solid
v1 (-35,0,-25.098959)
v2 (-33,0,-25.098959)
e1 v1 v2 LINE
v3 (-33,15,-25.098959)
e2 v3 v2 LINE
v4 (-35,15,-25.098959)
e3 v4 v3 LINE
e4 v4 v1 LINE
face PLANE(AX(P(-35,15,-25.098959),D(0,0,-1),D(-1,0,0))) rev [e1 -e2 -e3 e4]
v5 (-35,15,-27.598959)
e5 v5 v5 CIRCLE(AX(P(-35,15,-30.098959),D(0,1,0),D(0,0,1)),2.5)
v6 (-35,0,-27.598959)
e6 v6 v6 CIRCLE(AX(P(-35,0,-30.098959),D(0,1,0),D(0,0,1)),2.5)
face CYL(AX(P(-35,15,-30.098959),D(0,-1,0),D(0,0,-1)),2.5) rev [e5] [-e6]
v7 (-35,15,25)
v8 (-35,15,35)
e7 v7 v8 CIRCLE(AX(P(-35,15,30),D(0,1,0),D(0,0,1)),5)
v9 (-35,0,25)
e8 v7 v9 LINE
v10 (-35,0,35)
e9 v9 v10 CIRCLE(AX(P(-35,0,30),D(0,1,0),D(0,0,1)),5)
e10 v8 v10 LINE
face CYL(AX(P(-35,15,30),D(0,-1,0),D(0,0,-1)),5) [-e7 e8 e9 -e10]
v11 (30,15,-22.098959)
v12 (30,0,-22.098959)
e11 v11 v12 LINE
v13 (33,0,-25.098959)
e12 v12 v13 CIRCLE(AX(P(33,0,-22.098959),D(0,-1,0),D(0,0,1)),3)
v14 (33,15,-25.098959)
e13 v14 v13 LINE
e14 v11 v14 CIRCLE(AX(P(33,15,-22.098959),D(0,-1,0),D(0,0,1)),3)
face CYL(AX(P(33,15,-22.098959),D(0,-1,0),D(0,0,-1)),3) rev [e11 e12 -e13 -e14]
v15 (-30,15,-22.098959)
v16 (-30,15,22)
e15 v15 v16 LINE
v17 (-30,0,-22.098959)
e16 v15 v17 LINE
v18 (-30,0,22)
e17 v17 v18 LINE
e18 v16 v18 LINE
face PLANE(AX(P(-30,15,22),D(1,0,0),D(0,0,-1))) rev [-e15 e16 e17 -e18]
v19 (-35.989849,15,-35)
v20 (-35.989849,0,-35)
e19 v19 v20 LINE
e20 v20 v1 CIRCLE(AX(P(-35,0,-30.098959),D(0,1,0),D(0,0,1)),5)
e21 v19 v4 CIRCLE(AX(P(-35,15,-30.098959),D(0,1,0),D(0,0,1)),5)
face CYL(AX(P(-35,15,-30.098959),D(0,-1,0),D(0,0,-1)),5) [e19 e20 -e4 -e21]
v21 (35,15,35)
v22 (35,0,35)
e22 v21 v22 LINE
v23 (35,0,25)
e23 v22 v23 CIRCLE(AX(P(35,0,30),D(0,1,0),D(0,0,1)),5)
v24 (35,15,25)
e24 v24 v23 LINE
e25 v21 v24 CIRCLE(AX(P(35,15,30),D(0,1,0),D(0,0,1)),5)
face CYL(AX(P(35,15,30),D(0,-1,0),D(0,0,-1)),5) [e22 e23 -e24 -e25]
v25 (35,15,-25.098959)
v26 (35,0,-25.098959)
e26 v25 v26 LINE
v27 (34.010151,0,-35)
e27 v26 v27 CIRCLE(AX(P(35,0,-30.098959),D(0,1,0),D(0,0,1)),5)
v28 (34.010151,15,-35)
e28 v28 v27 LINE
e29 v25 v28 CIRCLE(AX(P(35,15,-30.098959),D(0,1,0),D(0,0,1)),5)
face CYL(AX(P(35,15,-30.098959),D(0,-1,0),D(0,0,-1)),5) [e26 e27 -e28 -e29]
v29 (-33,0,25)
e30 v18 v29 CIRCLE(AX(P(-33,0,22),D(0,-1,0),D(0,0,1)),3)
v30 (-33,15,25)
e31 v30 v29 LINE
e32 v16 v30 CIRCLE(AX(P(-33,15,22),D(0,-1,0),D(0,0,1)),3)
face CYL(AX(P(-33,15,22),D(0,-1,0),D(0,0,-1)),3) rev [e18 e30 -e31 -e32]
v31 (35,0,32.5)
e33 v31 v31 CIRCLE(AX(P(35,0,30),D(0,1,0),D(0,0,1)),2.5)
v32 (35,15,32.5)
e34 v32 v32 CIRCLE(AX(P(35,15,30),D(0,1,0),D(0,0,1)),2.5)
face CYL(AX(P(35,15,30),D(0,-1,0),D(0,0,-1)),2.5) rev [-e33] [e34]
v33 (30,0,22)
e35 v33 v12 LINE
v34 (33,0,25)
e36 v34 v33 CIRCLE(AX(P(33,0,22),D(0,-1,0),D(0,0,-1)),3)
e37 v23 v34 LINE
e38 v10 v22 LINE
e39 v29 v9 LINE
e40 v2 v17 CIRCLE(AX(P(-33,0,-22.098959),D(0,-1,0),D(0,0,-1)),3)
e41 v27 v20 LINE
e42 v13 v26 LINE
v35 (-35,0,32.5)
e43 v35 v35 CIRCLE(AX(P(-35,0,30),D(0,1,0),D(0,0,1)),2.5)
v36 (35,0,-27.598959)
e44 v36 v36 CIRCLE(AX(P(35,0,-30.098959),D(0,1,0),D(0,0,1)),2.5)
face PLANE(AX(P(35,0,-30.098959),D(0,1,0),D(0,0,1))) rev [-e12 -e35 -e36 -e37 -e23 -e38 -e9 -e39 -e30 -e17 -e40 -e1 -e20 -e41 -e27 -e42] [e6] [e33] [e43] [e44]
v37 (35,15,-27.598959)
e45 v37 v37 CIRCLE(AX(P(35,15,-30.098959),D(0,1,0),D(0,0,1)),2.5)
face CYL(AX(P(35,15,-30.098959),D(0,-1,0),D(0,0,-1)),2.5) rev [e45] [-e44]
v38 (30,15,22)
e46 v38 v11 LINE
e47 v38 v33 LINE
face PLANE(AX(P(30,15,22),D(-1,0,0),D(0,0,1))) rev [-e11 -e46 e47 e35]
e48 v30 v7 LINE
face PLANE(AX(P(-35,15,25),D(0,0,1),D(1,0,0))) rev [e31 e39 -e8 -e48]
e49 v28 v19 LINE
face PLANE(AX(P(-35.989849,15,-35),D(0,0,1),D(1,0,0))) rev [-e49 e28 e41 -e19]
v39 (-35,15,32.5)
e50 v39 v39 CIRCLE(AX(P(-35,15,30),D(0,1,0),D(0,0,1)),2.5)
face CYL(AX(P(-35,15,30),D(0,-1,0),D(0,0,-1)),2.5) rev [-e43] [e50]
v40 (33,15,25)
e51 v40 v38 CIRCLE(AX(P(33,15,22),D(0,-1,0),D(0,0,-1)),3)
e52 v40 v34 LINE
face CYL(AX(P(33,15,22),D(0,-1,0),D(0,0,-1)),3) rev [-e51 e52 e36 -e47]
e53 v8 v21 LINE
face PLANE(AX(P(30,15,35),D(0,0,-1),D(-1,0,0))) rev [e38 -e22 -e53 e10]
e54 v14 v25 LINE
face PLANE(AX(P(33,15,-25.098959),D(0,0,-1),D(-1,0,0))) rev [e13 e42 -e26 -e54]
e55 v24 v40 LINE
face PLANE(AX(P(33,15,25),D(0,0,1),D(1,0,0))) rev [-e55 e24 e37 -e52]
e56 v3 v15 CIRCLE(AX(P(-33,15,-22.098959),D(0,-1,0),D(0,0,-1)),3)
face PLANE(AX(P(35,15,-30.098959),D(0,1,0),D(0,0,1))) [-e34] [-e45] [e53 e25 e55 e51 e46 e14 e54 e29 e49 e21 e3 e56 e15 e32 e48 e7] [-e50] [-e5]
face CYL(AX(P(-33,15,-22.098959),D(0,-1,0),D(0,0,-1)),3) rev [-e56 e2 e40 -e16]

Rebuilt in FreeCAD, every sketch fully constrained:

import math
import FreeCAD as App
import Part
import Sketcher

doc = App.newDocument("Part")
body = doc.addObject("PartDesign::Body", "Body")

# Sketch on XZ plane
sketch1 = body.newObject("Sketcher::SketchObject", "Sketch")
sketch1.AttachmentSupport = (doc.getObject("XZ_Plane"), [""])
sketch1.MapMode = "FlatFace"
sketch1.addGeometry(Part.ArcOfCircle(Part.Circle(App.Vector(35, 30, 0), App.Vector(0, 0, 1), 5), math.radians(-90), math.radians(90)), False)
sketch1.addGeometry(Part.LineSegment(App.Vector(35, 25, 0), App.Vector(33, 25, 0)), False)
sketch1.addGeometry(Part.ArcOfCircle(Part.Circle(App.Vector(33, 22, 0), App.Vector(0, 0, 1), 3), math.radians(90), math.radians(180)), False)
sketch1.addGeometry(Part.LineSegment(App.Vector(30, 22, 0), App.Vector(30, -22.1, 0)), False)
sketch1.addGeometry(Part.ArcOfCircle(Part.Circle(App.Vector(33, -22.1, 0), App.Vector(0, 0, 1), 3), math.radians(180), math.radians(270)), False)
sketch1.addGeometry(Part.LineSegment(App.Vector(33, -25.1, 0), App.Vector(35, -25.1, 0)), False)
sketch1.addGeometry(Part.ArcOfCircle(Part.Circle(App.Vector(35, -30.1, 0), App.Vector(0, 0, 1), 5), math.radians(-101), math.radians(90)), False)
sketch1.addGeometry(Part.LineSegment(App.Vector(34, -35, 0), App.Vector(-36, -35, 0)), False)
sketch1.addGeometry(Part.ArcOfCircle(Part.Circle(App.Vector(-35, -30.1, 0), App.Vector(0, 0, 1), 5), math.radians(90), math.radians(259)), False)
sketch1.addGeometry(Part.LineSegment(App.Vector(-35, -25.1, 0), App.Vector(-33, -25.1, 0)), False)
sketch1.addGeometry(Part.ArcOfCircle(Part.Circle(App.Vector(-33, -22.1, 0), App.Vector(0, 0, 1), 3), math.radians(-90), math.radians(0)), False)
sketch1.addGeometry(Part.LineSegment(App.Vector(-30, -22.1, 0), App.Vector(-30, 22, 0)), False)
sketch1.addGeometry(Part.ArcOfCircle(Part.Circle(App.Vector(-33, 22, 0), App.Vector(0, 0, 1), 3), math.radians(0), math.radians(90)), False)
sketch1.addGeometry(Part.LineSegment(App.Vector(-33, 25, 0), App.Vector(-35, 25, 0)), False)
sketch1.addGeometry(Part.ArcOfCircle(Part.Circle(App.Vector(-35, 30, 0), App.Vector(0, 0, 1), 5), math.radians(90), math.radians(270)), False)
sketch1.addGeometry(Part.LineSegment(App.Vector(-35, 35, 0), App.Vector(35, 35, 0)), False)
sketch1.addGeometry(Part.Circle(App.Vector(-35, 30, 0), App.Vector(0, 0, 1), 2.5), False)
sketch1.addGeometry(Part.Circle(App.Vector(35, 30, 0), App.Vector(0, 0, 1), 2.5), False)
sketch1.addGeometry(Part.Circle(App.Vector(-35, -30.1, 0), App.Vector(0, 0, 1), 2.5), False)
sketch1.addGeometry(Part.Circle(App.Vector(35, -30.1, 0), App.Vector(0, 0, 1), 2.5), False)
sketch1.addConstraint(Sketcher.Constraint("Tangent", 0, 1, 1, 1))
sketch1.addConstraint(Sketcher.Constraint("Tangent", 1, 2, 2, 1))
sketch1.addConstraint(Sketcher.Constraint("Tangent", 2, 2, 3, 1))
sketch1.addConstraint(Sketcher.Constraint("Tangent", 3, 2, 4, 1))
sketch1.addConstraint(Sketcher.Constraint("Tangent", 4, 2, 5, 1))
sketch1.addConstraint(Sketcher.Constraint("Tangent", 5, 2, 6, 2))
sketch1.addConstraint(Sketcher.Constraint("Coincident", 6, 1, 7, 1))
sketch1.addConstraint(Sketcher.Constraint("Coincident", 7, 2, 8, 2))
sketch1.addConstraint(Sketcher.Constraint("Tangent", 8, 1, 9, 1))
sketch1.addConstraint(Sketcher.Constraint("Tangent", 9, 2, 10, 1))
sketch1.addConstraint(Sketcher.Constraint("Tangent", 10, 2, 11, 1))
sketch1.addConstraint(Sketcher.Constraint("Tangent", 11, 2, 12, 1))
sketch1.addConstraint(Sketcher.Constraint("Tangent", 12, 2, 13, 1))
sketch1.addConstraint(Sketcher.Constraint("Tangent", 13, 2, 14, 2))
sketch1.addConstraint(Sketcher.Constraint("Tangent", 14, 1, 15, 1))
sketch1.addConstraint(Sketcher.Constraint("Tangent", 15, 2, 0, 2))
sketch1.addConstraint(Sketcher.Constraint("Horizontal", 1))
sketch1.addConstraint(Sketcher.Constraint("Vertical", 3))
sketch1.addConstraint(Sketcher.Constraint("Horizontal", 5))
sketch1.addConstraint(Sketcher.Constraint("Horizontal", 7))
sketch1.addConstraint(Sketcher.Constraint("Horizontal", 9))
sketch1.addConstraint(Sketcher.Constraint("Vertical", 11))
sketch1.addConstraint(Sketcher.Constraint("Horizontal", 13))
sketch1.addConstraint(Sketcher.Constraint("Horizontal", 15))
sketch1.addConstraint(Sketcher.Constraint("Coincident", 16, 3, 14, 3))
sketch1.addConstraint(Sketcher.Constraint("Coincident", 17, 3, 0, 3))
sketch1.addConstraint(Sketcher.Constraint("Coincident", 18, 3, 8, 3))
sketch1.addConstraint(Sketcher.Constraint("Coincident", 19, 3, 6, 3))
sketch1.addConstraint(Sketcher.Constraint("Equal", 2, 4))
sketch1.addConstraint(Sketcher.Constraint("Equal", 0, 6))
sketch1.addConstraint(Sketcher.Constraint("Equal", 6, 8))
sketch1.addConstraint(Sketcher.Constraint("Equal", 4, 10))
sketch1.addConstraint(Sketcher.Constraint("Equal", 10, 12))
sketch1.addConstraint(Sketcher.Constraint("Equal", 8, 14))
sketch1.addConstraint(Sketcher.Constraint("Equal", 16, 17))
sketch1.addConstraint(Sketcher.Constraint("Equal", 17, 18))
sketch1.addConstraint(Sketcher.Constraint("Equal", 18, 19))
sketch1.addConstraint(Sketcher.Constraint("Symmetric", 6, 3, 8, 3, -2))
sketch1.addConstraint(Sketcher.Constraint("Vertical", 0, 3, 6, 3))
sketch1.addConstraint(Sketcher.Constraint("Vertical", 8, 3, 14, 3))
sketch1.addConstraint(Sketcher.Constraint("Equal", 5, 9))
sketch1.addConstraint(Sketcher.Constraint("Diameter", 16, 5.0))
sketch1.addConstraint(Sketcher.Constraint("Radius", 0, 5.0))
sketch1.addConstraint(Sketcher.Constraint("Radius", 2, 3.0))
sketch1.addConstraint(Sketcher.Constraint("DistanceX", 1, 2, 1, 1, 2.0))
sketch1.addConstraint(Sketcher.Constraint("DistanceX", 7, 2, 7, 1, 70.0))
sketch1.addConstraint(Sketcher.Constraint("DistanceY", -1, 1, 0, 3, 30.0))
sketch1.addConstraint(Sketcher.Constraint("DistanceY", 6, 1, -1, 1, 35.0))
sketch1.addConstraint(Sketcher.Constraint("DistanceY", 3, 2, 3, 1, 44.098959))
pad1 = body.newObject("PartDesign::Pad", "Pad")
pad1.Profile = sketch1
pad1.Length = 15
pad1.Reversed = True

doc.recompute()
